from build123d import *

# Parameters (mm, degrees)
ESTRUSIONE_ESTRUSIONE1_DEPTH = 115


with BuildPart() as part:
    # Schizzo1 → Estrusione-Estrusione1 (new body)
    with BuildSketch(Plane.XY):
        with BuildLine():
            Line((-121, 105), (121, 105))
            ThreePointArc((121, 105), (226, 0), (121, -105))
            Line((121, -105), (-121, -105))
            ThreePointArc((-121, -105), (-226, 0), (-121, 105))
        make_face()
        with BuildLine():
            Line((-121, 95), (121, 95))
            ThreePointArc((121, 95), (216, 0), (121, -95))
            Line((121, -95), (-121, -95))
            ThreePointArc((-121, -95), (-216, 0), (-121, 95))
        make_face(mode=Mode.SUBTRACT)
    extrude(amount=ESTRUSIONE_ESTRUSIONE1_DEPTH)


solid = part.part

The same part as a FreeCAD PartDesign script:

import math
import FreeCAD as App
import Part
import Sketcher
Q = App.Units.Quantity

doc = App.newDocument("Part")
body = doc.addObject("PartDesign::Body", "Body")

sketch1 = body.newObject("Sketcher::SketchObject", "Sketch")
sketch1.AttachmentSupport = (doc.getObject("XY_Plane"), [""])
sketch1.MapMode = "FlatFace"
sketch1.addGeometry([
    Part.LineSegment(App.Vector(121, 105, 0), App.Vector(-121, 105, 0)),
    Part.ArcOfCircle(Part.Circle(App.Vector(-121, 0, 0), App.Vector(0, 0, 1), 105), math.radians(90), math.radians(270)),
    Part.LineSegment(App.Vector(-121, -105, 0), App.Vector(121, -105, 0)),
    Part.ArcOfCircle(Part.Circle(App.Vector(121, 0, 0), App.Vector(0, 0, 1), 105), math.radians(-90), math.radians(90)),
    Part.LineSegment(App.Vector(-121, 95, 0), App.Vector(121, 95, 0)),
    Part.ArcOfCircle(Part.Circle(App.Vector(121, 0, 0), App.Vector(0, 0, 1), 95), math.radians(-90), math.radians(90)),
    Part.LineSegment(App.Vector(121, -95, 0), App.Vector(-121, -95, 0)),
    Part.ArcOfCircle(Part.Circle(App.Vector(-121, 0, 0), App.Vector(0, 0, 1), 95), math.radians(90), math.radians(270)),
], False)
sketch1.addConstraint([
    Sketcher.Constraint("Tangent", 0, 2, 1, 1),
    Sketcher.Constraint("Tangent", 1, 2, 2, 1),
    Sketcher.Constraint("Tangent", 2, 2, 3, 1),
    Sketcher.Constraint("Tangent", 3, 2, 0, 1),
    Sketcher.Constraint("Tangent", 4, 2, 5, 2),
    Sketcher.Constraint("Tangent", 5, 1, 6, 1),
    Sketcher.Constraint("Tangent", 6, 2, 7, 2),
    Sketcher.Constraint("Tangent", 7, 1, 4, 1),
    Sketcher.Constraint("Horizontal", 0),
    Sketcher.Constraint("Horizontal", 2),
    Sketcher.Constraint("Horizontal", 4),
    Sketcher.Constraint("Horizontal", 6),
    Sketcher.Constraint("Coincident", 5, 3, 3, 3),
    Sketcher.Constraint("Symmetric", 1, 3, 3, 3, -1, 1),
    Sketcher.Constraint("Vertical", 7, 3, 0, 2),
    Sketcher.Constraint("Radius", 1, Q("105 mm")),
    Sketcher.Constraint("Radius", 5, Q("95 mm")),
    Sketcher.Constraint("DistanceX", 0, 2, 0, 1, Q("242 mm")),
])
pad1 = body.newObject("PartDesign::Pad", "Pad")
pad1.Profile = sketch1
pad1.Length = 115

doc.recompute()
